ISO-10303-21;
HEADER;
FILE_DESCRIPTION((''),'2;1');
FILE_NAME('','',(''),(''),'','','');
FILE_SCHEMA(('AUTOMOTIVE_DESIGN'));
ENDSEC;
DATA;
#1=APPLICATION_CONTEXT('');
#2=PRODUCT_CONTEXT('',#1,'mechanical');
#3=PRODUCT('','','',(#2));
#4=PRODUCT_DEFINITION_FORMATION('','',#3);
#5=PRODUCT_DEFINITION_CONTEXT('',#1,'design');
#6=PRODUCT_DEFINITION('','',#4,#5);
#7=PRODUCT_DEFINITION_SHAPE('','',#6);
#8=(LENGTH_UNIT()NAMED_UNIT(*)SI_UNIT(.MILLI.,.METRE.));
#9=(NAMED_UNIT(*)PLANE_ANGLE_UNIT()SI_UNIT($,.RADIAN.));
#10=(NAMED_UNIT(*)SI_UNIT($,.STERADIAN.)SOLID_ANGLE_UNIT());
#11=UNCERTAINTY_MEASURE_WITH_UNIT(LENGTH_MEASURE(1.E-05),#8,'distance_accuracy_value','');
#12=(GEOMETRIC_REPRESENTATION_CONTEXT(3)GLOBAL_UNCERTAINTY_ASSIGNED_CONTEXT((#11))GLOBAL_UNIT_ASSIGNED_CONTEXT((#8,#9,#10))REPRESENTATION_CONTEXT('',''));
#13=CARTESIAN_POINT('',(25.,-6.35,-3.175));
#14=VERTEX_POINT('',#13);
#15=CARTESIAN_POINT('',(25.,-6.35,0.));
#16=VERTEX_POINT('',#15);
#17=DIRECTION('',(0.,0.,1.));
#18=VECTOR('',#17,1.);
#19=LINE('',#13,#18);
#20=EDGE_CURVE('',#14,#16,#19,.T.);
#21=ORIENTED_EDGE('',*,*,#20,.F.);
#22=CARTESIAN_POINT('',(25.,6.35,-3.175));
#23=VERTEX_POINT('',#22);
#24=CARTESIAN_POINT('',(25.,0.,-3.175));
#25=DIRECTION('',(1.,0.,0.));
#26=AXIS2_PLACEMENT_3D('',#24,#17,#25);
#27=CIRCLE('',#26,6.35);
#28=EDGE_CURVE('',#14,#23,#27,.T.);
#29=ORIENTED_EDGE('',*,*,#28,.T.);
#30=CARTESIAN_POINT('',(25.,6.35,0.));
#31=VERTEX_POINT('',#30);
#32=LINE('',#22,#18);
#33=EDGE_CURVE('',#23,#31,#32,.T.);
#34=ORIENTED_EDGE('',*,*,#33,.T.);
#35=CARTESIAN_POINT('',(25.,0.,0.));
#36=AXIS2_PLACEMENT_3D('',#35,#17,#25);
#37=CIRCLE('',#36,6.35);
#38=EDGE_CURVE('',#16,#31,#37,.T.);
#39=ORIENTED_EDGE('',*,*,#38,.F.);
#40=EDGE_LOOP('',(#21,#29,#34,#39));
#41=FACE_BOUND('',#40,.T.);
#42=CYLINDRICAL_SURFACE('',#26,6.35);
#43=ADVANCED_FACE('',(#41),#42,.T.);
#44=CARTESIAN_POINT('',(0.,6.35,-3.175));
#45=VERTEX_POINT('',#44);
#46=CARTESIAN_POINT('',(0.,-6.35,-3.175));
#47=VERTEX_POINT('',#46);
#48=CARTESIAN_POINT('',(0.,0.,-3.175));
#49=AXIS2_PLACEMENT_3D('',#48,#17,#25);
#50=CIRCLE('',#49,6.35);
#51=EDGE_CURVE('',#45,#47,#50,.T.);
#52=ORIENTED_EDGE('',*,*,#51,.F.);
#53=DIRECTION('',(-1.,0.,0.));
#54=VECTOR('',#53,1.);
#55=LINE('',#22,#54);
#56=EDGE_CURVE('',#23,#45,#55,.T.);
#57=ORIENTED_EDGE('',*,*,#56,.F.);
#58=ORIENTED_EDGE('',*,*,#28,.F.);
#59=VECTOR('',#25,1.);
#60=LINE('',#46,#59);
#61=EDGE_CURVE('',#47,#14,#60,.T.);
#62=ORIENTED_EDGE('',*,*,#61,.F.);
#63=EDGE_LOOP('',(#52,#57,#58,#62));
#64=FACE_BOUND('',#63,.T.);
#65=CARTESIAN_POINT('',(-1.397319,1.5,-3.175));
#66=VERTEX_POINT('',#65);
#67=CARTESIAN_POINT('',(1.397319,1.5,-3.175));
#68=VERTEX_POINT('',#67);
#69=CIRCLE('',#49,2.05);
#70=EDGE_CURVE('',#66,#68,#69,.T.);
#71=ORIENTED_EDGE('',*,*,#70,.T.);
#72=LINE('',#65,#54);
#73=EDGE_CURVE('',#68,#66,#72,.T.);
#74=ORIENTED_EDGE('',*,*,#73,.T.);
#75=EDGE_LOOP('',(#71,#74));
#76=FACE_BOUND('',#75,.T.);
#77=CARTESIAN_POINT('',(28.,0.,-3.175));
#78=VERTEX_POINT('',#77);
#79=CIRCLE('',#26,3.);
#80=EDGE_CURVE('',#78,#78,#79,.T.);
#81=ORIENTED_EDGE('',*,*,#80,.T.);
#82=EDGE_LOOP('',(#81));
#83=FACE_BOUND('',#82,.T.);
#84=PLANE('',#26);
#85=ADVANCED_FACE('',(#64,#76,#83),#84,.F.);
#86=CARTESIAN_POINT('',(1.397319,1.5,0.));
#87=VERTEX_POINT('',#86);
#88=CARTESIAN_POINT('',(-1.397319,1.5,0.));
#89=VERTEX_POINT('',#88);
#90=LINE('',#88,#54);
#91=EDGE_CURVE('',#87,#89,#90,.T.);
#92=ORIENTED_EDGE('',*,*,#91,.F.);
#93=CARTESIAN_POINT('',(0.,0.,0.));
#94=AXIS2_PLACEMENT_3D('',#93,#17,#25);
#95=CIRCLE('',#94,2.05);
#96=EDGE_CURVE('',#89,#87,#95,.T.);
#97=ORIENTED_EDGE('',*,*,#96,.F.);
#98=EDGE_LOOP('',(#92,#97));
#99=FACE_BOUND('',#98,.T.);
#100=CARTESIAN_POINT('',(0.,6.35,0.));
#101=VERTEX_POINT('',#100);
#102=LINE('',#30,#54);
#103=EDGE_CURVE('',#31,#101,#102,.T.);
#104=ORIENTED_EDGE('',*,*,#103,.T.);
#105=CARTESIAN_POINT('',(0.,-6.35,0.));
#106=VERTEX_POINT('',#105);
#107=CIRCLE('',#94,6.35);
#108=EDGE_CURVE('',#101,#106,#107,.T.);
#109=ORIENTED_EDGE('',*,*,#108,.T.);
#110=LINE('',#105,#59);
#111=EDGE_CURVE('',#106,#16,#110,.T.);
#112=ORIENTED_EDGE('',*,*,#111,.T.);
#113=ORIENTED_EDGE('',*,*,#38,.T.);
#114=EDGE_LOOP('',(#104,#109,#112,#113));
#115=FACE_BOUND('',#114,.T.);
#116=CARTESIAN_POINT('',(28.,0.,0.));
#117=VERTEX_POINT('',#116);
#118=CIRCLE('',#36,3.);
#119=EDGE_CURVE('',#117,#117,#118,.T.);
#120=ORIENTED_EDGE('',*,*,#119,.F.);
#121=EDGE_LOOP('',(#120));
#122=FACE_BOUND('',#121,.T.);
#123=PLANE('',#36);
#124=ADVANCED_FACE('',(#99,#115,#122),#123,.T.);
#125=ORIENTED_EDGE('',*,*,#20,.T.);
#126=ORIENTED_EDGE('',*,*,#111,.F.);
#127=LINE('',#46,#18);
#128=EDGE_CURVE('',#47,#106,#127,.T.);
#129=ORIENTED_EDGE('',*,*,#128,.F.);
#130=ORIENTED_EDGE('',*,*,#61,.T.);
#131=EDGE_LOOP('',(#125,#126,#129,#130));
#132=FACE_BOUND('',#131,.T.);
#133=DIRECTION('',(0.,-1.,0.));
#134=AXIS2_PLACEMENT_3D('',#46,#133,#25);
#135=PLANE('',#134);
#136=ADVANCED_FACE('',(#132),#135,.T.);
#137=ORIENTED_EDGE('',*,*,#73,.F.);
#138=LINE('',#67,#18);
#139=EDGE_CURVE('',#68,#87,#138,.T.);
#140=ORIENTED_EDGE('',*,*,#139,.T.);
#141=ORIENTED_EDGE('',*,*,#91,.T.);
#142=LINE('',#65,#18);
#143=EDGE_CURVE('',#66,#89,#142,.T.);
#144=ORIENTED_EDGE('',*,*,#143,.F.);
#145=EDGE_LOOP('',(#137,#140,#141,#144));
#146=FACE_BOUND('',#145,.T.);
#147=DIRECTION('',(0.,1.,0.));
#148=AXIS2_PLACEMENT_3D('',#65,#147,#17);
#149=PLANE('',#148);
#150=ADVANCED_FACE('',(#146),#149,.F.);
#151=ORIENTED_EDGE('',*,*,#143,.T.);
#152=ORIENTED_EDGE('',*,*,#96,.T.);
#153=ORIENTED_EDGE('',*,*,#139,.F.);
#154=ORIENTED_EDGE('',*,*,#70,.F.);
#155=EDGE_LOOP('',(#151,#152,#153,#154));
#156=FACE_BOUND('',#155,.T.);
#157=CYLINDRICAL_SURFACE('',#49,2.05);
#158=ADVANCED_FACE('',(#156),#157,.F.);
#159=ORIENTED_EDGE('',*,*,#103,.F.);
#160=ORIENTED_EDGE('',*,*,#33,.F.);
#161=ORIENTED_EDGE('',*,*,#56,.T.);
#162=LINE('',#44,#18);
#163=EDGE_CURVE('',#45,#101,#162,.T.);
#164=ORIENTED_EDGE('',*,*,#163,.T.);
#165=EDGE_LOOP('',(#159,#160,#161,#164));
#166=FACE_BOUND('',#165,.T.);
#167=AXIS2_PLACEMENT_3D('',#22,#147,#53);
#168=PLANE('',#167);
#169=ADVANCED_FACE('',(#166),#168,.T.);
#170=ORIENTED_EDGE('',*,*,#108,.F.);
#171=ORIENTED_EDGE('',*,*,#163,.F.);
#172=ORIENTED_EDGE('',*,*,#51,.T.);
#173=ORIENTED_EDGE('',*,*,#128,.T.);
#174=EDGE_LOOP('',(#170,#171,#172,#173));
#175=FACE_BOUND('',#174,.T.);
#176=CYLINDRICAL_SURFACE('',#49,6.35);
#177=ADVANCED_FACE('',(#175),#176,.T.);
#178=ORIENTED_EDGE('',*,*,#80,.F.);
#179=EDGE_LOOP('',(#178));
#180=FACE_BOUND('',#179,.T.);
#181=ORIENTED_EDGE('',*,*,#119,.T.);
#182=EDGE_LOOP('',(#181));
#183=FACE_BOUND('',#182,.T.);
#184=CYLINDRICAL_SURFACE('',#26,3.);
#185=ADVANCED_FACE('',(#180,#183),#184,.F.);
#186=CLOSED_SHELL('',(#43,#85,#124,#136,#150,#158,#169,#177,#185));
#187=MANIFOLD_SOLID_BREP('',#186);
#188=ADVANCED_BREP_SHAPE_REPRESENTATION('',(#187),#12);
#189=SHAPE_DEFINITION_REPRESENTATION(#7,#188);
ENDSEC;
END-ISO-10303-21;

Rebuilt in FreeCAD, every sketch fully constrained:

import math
import FreeCAD as App
import Part
import Sketcher
from FreeCAD import Vector
Q = App.Units.Quantity

doc = App.newDocument("Part")
body = doc.addObject("PartDesign::Body", "Body")

sketch1 = doc.addObject("Sketcher::SketchObject", "Sketch")
body.addObject(sketch1)
sketch1.AttachmentSupport = (doc.XY_Plane, [""])
sketch1.MapMode = "FlatFace"
sketch1.addGeometry(Part.LineSegment(Vector(25, 6.3, 0), Vector(0, 6.3, 0)), False)
sketch1.addGeometry(Part.ArcOfCircle(Part.Circle(Vector(0, 0, 0), Vector(0, 0, 1), 6.3), math.radians(90), math.radians(270)), False)
sketch1.addGeometry(Part.LineSegment(Vector(0, -6.3, 0), Vector(25, -6.3, 0)), False)
sketch1.addGeometry(Part.ArcOfCircle(Part.Circle(Vector(25, 0, 0), Vector(0, 0, 1), 6.3), math.radians(-90), math.radians(90)), False)
sketch1.addGeometry(Part.ArcOfCircle(Part.Circle(Vector(0, 0, 0), Vector(0, 0, 1), 2), math.radians(133), math.radians(407)), False)
sketch1.addGeometry(Part.LineSegment(Vector(-1.4, 1.5, 0), Vector(1.4, 1.5, 0)), False)
sketch1.addGeometry(Part.Circle(Vector(25, 0, 0), Vector(0, 0, 1), 3), False)
sketch1.addConstraint(Sketcher.Constraint("Tangent", 0, 2, 1, 1))
sketch1.addConstraint(Sketcher.Constraint("Tangent", 1, 2, 2, 1))
sketch1.addConstraint(Sketcher.Constraint("Tangent", 2, 2, 3, 1))
sketch1.addConstraint(Sketcher.Constraint("Tangent", 3, 2, 0, 1))
sketch1.addConstraint(Sketcher.Constraint("Coincident", 4, 1, 5, 1))
sketch1.addConstraint(Sketcher.Constraint("Coincident", 5, 2, 4, 2))
sketch1.addConstraint(Sketcher.Constraint("Horizontal", 0))
sketch1.addConstraint(Sketcher.Constraint("Horizontal", 2))
sketch1.addConstraint(Sketcher.Constraint("Horizontal", 5))
sketch1.addConstraint(Sketcher.Constraint("Coincident", 1, 3, -1, 1))
sketch1.addConstraint(Sketcher.Constraint("Coincident", 4, 3, -1, 1))
sketch1.addConstraint(Sketcher.Constraint("Coincident", 6, 3, 3, 3))
sketch1.addConstraint(Sketcher.Constraint("Diameter", 6, Q("6 mm")))
sketch1.addConstraint(Sketcher.Constraint("DistanceX", 0, 2, 0, 1, Q("25 mm")))
sketch1.addConstraint(Sketcher.Constraint("Radius", 1, Q("6.35 mm")))
sketch1.addConstraint(Sketcher.Constraint("Radius", 4, Q("2.05 mm")))
sketch1.addConstraint(Sketcher.Constraint("DistanceY", -1, 1, 4, 1, Q("1.5 mm")))
pad1 = doc.addObject("PartDesign::Pad", "Pad")
body.addObject(pad1)
pad1.Profile = sketch1
pad1.Length = 3.175
pad1.Reversed = True

doc.recompute()
